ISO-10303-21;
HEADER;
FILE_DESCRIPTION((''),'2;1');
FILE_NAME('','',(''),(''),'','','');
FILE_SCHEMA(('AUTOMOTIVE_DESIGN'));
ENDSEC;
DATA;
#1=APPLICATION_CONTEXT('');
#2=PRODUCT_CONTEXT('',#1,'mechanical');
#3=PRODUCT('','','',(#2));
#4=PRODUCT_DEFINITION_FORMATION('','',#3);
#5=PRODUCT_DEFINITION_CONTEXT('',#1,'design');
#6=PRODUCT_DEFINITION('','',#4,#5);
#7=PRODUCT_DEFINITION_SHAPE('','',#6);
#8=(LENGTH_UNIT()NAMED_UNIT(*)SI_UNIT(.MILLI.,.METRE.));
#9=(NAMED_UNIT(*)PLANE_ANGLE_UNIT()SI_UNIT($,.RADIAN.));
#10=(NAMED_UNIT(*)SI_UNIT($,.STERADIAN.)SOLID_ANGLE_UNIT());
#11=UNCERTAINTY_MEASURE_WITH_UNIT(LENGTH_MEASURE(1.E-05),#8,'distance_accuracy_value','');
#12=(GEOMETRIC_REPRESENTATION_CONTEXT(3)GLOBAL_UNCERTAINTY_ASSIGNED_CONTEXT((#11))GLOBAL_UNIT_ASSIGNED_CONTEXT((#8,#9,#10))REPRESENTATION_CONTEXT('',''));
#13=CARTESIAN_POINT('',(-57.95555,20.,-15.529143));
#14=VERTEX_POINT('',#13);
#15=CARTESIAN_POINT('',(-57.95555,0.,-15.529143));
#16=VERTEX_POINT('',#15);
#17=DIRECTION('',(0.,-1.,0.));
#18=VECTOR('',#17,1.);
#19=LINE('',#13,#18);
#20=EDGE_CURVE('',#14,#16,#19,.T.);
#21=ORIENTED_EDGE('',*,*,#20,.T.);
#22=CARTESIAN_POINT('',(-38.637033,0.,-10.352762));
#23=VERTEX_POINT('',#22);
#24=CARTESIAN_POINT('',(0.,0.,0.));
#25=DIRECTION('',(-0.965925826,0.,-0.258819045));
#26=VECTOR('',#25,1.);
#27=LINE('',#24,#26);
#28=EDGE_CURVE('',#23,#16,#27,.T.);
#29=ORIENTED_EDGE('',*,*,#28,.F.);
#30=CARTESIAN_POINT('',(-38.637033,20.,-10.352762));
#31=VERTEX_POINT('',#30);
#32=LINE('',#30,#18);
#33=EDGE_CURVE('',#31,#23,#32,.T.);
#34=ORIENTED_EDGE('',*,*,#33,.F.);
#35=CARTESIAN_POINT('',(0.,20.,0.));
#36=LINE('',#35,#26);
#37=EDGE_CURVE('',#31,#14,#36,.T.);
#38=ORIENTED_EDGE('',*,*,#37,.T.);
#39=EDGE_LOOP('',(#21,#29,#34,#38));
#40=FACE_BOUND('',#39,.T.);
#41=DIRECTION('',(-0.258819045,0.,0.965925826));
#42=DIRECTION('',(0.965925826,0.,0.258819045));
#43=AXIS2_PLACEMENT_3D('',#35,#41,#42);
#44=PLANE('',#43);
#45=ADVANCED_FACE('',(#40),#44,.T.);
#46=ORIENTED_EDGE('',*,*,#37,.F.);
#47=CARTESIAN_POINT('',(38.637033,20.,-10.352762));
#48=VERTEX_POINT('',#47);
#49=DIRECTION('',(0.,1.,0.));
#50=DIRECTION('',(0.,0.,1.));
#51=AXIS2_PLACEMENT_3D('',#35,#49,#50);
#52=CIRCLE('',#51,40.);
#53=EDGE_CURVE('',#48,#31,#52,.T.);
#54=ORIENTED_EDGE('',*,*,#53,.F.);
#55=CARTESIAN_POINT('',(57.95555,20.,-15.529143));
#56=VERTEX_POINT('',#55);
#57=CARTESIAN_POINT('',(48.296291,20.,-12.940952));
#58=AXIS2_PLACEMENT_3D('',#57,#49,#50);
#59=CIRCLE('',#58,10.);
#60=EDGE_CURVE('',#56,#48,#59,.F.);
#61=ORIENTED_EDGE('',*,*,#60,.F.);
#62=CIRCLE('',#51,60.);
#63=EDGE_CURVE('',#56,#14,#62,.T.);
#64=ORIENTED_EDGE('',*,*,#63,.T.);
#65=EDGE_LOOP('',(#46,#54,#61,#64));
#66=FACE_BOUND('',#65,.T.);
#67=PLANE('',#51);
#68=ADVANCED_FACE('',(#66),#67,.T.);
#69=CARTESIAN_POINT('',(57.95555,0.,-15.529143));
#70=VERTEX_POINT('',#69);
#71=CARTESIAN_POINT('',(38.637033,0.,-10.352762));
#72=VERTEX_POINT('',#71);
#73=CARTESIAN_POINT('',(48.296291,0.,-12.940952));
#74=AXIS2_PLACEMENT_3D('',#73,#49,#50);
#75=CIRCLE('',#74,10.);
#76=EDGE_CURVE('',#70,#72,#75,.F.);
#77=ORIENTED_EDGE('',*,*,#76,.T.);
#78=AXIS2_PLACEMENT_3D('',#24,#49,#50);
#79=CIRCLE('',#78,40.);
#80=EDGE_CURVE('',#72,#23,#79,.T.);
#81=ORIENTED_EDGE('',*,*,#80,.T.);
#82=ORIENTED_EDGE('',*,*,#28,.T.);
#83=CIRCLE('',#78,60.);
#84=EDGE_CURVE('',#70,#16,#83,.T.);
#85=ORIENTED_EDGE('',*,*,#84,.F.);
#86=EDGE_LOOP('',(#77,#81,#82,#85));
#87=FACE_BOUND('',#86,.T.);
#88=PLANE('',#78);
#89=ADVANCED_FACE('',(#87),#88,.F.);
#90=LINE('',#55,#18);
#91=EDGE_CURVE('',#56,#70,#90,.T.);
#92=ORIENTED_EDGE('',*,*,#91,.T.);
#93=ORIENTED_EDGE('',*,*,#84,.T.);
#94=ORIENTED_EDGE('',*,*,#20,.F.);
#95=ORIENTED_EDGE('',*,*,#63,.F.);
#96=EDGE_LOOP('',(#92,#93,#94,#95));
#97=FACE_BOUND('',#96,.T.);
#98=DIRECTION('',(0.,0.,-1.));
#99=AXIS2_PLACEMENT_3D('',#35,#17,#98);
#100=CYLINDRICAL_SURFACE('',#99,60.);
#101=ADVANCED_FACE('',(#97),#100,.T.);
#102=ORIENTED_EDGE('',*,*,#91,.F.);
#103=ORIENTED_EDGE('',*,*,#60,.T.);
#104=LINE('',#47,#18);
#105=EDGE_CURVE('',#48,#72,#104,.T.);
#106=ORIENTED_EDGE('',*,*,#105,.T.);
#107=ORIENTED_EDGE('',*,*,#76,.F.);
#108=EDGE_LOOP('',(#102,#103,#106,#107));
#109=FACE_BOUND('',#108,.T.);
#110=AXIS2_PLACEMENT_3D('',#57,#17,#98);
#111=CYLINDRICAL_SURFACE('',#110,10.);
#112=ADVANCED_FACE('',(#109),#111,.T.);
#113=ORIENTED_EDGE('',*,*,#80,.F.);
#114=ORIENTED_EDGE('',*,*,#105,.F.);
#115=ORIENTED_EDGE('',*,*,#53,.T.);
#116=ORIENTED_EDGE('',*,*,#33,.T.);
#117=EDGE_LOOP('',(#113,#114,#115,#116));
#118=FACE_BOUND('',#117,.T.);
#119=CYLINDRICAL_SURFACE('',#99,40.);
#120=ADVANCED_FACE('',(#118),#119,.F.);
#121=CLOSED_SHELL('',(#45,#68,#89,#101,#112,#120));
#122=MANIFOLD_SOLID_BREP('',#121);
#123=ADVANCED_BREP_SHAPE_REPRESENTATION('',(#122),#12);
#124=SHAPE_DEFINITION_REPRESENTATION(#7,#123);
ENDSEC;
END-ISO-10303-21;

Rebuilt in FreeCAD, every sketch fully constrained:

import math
import FreeCAD as App
import Part
import Sketcher
from FreeCAD import Vector
Q = App.Units.Quantity

doc = App.newDocument("Part")
params = doc.addObject("Spreadsheet::Sheet", "Params")
for row, (alias, value) in enumerate([
    ("sketch1_radius", "40 mm"),
    ("sketch1_radius2", "10 mm"),
    ("pad1_length", "20 mm"),
], start=1):
    params.set(f"A{row}", alias)
    params.set(f"B{row}", "=" + value)
    params.setAlias(f"B{row}", alias)

body = doc.addObject("PartDesign::Body", "Body")

# Sketch on XZ plane
sketch1 = doc.addObject("Sketcher::SketchObject", "Sketch")
body.addObject(sketch1)
sketch1.AttachmentSupport = (doc.XZ_Plane, [""])
sketch1.MapMode = "FlatFace"
sketch1.addGeometry([
    Part.LineSegment(Vector(-58, -16, 0), Vector(-39, -10, 0)),
    Part.ArcOfCircle(Part.Circle(Vector(0, 0, 0), Vector(0, 0, 1), 40), math.radians(-165), math.radians(-15)),
    Part.ArcOfCircle(Part.Circle(Vector(48, -13, 0), Vector(0, 0, 1), 10), math.radians(-15), math.radians(165)),
    Part.ArcOfCircle(Part.Circle(Vector(0, 0, 0), Vector(0, 0, 1), 60), math.radians(-165), math.radians(-15)),
], False)
sketch1.addConstraint([
    Sketcher.Constraint("Coincident", 0, 2, 1, 1),
    Sketcher.Constraint("Tangent", 1, 2, 2, 2),
    Sketcher.Constraint("Tangent", 2, 1, 3, 2),
    Sketcher.Constraint("Coincident", 3, 1, 0, 1),
    Sketcher.Constraint("Coincident", 1, 3, -1, 1),
    Sketcher.Constraint("Coincident", 3, 3, -1, 1),
    Sketcher.Constraint("Horizontal", 0, 2, 1, 2),
    Sketcher.Constraint("Horizontal", 2, 1, 3, 1),
    Sketcher.Constraint("Radius", 1, Q("40 mm")),
    Sketcher.Constraint("Radius", 2, Q("10 mm")),
    Sketcher.Constraint("Angle", 0, Q("15 deg")),
])
sketch1.setExpression("Constraints[8]", "Params.sketch1_radius")
sketch1.setExpression("Constraints[9]", "Params.sketch1_radius2")
pad1 = doc.addObject("PartDesign::Pad", "Pad")
body.addObject(pad1)
pad1.Profile = sketch1
pad1.setExpression("Length", "Params.pad1_length")
pad1.Reversed = True

doc.recompute()
